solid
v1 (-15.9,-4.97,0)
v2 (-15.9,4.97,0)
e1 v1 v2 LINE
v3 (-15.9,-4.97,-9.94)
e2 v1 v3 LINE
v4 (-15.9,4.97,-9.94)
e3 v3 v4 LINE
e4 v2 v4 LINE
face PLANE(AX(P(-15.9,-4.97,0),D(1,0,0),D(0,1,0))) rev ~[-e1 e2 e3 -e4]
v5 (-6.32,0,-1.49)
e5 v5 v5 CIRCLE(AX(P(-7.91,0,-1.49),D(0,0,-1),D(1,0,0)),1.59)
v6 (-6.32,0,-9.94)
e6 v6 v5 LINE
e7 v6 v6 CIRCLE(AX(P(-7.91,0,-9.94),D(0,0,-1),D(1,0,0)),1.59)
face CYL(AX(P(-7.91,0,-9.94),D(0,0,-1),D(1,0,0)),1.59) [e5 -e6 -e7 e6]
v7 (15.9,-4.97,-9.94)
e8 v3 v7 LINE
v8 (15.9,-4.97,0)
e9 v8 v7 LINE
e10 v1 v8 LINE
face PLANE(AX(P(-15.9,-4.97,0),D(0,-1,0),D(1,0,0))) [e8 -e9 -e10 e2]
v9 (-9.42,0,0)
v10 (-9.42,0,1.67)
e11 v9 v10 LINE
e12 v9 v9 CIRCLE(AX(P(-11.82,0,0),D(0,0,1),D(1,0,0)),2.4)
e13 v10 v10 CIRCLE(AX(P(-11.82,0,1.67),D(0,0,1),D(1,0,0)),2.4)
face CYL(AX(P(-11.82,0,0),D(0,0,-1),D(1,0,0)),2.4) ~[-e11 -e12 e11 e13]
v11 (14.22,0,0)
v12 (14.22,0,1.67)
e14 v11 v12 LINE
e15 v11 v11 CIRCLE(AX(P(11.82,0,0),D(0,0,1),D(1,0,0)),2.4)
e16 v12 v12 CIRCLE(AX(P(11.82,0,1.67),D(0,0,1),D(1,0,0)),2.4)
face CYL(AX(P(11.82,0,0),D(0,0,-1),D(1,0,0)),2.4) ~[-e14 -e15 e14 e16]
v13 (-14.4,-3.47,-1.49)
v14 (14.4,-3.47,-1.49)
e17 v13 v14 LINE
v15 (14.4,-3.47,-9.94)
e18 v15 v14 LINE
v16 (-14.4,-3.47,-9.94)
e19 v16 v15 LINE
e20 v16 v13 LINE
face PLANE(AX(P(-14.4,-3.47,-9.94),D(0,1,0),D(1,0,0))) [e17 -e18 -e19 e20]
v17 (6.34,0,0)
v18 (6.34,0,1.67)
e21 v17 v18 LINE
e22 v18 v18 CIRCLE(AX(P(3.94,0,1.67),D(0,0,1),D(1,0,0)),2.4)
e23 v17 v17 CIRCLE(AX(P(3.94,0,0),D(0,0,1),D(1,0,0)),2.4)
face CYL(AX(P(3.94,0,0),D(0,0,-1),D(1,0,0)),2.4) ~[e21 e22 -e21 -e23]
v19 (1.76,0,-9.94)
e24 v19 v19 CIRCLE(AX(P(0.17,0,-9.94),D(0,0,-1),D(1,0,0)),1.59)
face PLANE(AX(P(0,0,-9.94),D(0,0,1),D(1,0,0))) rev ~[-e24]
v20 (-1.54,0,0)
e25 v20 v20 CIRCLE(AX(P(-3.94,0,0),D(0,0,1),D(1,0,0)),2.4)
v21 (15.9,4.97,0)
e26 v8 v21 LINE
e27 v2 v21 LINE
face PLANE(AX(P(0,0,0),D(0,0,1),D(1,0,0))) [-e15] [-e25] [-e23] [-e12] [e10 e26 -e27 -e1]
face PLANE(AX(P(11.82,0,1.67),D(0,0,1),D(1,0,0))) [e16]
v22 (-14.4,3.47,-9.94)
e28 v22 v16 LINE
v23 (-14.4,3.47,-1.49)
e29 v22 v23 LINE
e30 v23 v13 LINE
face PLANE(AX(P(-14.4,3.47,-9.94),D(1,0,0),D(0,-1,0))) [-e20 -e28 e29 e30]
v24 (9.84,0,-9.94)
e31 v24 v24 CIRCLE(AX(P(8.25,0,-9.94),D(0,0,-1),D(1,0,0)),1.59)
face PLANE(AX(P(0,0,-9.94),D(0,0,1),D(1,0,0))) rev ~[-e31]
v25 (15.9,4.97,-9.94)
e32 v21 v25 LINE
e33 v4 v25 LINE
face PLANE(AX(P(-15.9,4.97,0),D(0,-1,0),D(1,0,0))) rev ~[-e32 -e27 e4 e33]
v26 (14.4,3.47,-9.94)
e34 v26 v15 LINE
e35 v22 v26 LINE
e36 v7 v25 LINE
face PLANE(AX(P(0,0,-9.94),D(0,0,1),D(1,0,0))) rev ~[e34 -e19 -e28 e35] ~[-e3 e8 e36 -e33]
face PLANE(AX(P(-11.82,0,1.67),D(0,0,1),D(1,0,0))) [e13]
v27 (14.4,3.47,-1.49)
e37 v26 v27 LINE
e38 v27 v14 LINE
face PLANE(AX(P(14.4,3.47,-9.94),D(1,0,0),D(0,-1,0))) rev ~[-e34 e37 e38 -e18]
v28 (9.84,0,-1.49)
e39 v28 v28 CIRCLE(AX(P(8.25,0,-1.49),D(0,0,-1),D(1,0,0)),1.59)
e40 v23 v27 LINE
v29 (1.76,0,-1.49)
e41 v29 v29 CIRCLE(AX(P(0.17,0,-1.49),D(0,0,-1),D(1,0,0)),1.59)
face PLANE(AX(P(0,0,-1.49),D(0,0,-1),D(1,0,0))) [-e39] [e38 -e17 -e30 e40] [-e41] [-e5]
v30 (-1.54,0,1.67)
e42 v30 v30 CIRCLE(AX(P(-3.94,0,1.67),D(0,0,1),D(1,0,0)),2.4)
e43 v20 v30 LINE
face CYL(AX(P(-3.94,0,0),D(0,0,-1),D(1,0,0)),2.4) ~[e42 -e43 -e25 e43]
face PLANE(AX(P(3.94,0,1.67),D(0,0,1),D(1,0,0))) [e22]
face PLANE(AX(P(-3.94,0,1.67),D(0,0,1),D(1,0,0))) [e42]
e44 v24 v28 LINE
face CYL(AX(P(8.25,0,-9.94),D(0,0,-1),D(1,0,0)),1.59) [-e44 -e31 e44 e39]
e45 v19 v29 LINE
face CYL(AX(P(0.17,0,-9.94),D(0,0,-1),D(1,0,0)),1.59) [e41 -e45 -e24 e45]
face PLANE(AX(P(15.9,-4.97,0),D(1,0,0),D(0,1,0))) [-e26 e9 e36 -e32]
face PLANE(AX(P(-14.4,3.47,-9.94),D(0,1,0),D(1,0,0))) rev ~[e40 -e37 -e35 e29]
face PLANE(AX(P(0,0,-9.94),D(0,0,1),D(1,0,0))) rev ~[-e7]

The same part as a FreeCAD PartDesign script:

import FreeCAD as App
import Part
import Sketcher


def add_polygon(sketch, points):
    """Adds a closed chain of lines whose ends are joined by coincident constraints."""
    first, n = sketch.GeometryCount, len(points)
    for a, b in zip(points, points[1:] + points[:1]):
        sketch.addGeometry(Part.LineSegment(App.Vector(*a, 0), App.Vector(*b, 0)), False)
    for i in range(n):
        sketch.addConstraint(Sketcher.Constraint("Coincident", first + i, 2, first + (i + 1) % n, 1))

doc = App.newDocument("Part")
body = doc.addObject("PartDesign::Body", "Body")

# Sketch on XY plane
sketch1 = body.newObject("Sketcher::SketchObject", "Sketch")
sketch1.AttachmentSupport = (doc.getObject("XY_Plane"), [""])
sketch1.MapMode = "FlatFace"
add_polygon(sketch1, [(-16, 5), (-16, -5), (16, -5), (16, 5)])  # lines 0-3
sketch1.addConstraint([
    Sketcher.Constraint("Vertical", 0),
    Sketcher.Constraint("Horizontal", 1),
    Sketcher.Constraint("Vertical", 2),
    Sketcher.Constraint("Horizontal", 3),
    Sketcher.Constraint("Symmetric", 0, 2, 2, 2, -1, 1),
    Sketcher.Constraint("DistanceX", 1, 1, 1, 2, 31.8),
    Sketcher.Constraint("DistanceY", 0, 2, 0, 1, 9.94),
])
pad1 = body.newObject("PartDesign::Pad", "Pad")
pad1.Profile = sketch1
pad1.Length = 9.94
pad1.Reversed = True

# Sketch on XY plane
sketch2 = body.newObject("Sketcher::SketchObject", "Sketch001")
sketch2.AttachmentSupport = (doc.getObject("XY_Plane"), [""])
sketch2.MapMode = "FlatFace"
sketch2.addGeometry([
    Part.Circle(App.Vector(-11.8, 0, 0), App.Vector(0, 0, 1), 2.4),
    Part.Circle(App.Vector(-3.9, 0, 0), App.Vector(0, 0, 1), 2.4),
    Part.Circle(App.Vector(3.9, 0, 0), App.Vector(0, 0, 1), 2.4),
    Part.Circle(App.Vector(11.8, 0, 0), App.Vector(0, 0, 1), 2.4),
], False)
sketch2.addConstraint([
    Sketcher.Constraint("Equal", 0, 1),
    Sketcher.Constraint("Equal", 1, 2),
    Sketcher.Constraint("Equal", 2, 3),
    Sketcher.Constraint("Symmetric", 1, 3, 2, 3, -1, 1),
    Sketcher.Constraint("Symmetric", 0, 3, 3, 3, -1, 1),
    Sketcher.Constraint("PointOnObject", 0, 3, -1),
    Sketcher.Constraint("PointOnObject", 1, 3, -1),
    Sketcher.Constraint("Diameter", 0, 4.8),
    Sketcher.Constraint("DistanceX", 0, 3, -1, 1, 11.82),
    Sketcher.Constraint("DistanceX", 1, 3, -1, 1, 3.94),
])
pad2 = body.newObject("PartDesign::Pad", "Pad001")
pad2.Profile = sketch2
pad2.Length = 1.67

# Sketch on XY plane
sketch3 = body.newObject("Sketcher::SketchObject", "Sketch002")
sketch3.AttachmentSupport = (doc.getObject("XY_Plane"), [""])
sketch3.MapMode = "FlatFace"
sketch3.AttachmentOffset = App.Placement(App.Vector(0, 0, -9.94), App.Rotation())
add_polygon(sketch3, [(-14.4, -3.5), (-14.4, 3.5), (14.4, 3.5), (14.4, -3.5)])  # lines 0-3
sketch3.addGeometry(Part.Circle(App.Vector(-7.9, 0, 0), App.Vector(0, 0, 1), 1.6), False)  # 4
sketch3.addGeometry(Part.Circle(App.Vector(0.2, 0, 0), App.Vector(0, 0, 1), 1.6), False)  # 5
sketch3.addGeometry(Part.Circle(App.Vector(8.2, 0, 0), App.Vector(0, 0, 1), 1.6), False)  # 6
sketch3.addConstraint([
    Sketcher.Constraint("Vertical", 0),
    Sketcher.Constraint("Horizontal", 1),
    Sketcher.Constraint("Vertical", 2),
    Sketcher.Constraint("Horizontal", 3),
    Sketcher.Constraint("Equal", 4, 5),
    Sketcher.Constraint("Equal", 5, 6),
    Sketcher.Constraint("Symmetric", 0, 2, 2, 2, -1, 1),
    Sketcher.Constraint("PointOnObject", 4, 3, -1),
    Sketcher.Constraint("PointOnObject", 5, 3, -1),
    Sketcher.Constraint("PointOnObject", 6, 3, -1),
    Sketcher.Constraint("Diameter", 4, 3.18),
    Sketcher.Constraint("DistanceX", 1, 1, 1, 2, 28.8),
    Sketcher.Constraint("DistanceY", 0, 1, 0, 2, 6.94),
    Sketcher.Constraint("DistanceX", 4, 3, -1, 1, 7.91),
    Sketcher.Constraint("DistanceX", -1, 1, 5, 3, 0.17),
    Sketcher.Constraint("DistanceX", -1, 1, 6, 3, 8.25),
])
pocket1 = body.newObject("PartDesign::Pocket", "Pocket")
pocket1.Profile = sketch3
pocket1.Length = 8.45
pocket1.Reversed = True

doc.recompute()
